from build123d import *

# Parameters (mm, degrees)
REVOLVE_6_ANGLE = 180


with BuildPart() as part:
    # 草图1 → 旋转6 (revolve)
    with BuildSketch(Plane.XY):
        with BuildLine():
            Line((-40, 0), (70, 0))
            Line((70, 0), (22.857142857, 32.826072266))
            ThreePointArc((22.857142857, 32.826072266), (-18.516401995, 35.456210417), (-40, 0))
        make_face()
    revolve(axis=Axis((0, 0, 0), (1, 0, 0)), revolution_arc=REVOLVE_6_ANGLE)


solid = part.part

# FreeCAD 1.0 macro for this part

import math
import FreeCAD as App
import Part
import Sketcher
from FreeCAD import Vector

doc = App.newDocument("Part")
body = doc.addObject("PartDesign::Body", "Body")

sketch1 = doc.addObject("Sketcher::SketchObject", "Sketch")
body.addObject(sketch1)
sketch1.AttachmentSupport = (doc.XY_Plane, [""])
sketch1.MapMode = "FlatFace"
sketch1.addGeometry([
    Part.LineSegment(Vector(-40, 0, 0), Vector(70, 0, 0)),
    Part.LineSegment(Vector(70, 0, 0), Vector(22.857143, 32.826072, 0)),
    Part.ArcOfCircle(Part.Circle(Vector(0, 0, 0), Vector(0, 0, 1), 40), math.radians(55.150095), math.radians(180)),
], False)
sketch1.addConstraint([
    Sketcher.Constraint("Coincident", 0, 2, 1, 1),
    Sketcher.Constraint("Tangent", 1, 2, 2, 1),
    Sketcher.Constraint("Coincident", 2, 2, 0, 1),
    Sketcher.Constraint("Horizontal", 0),
    Sketcher.Constraint("Coincident", 2, 3, -1, 1),
    Sketcher.Constraint("PointOnObject", 0, 2, -1),
    Sketcher.Constraint("Radius", 2, 40.0),
    Sketcher.Constraint("DistanceX", 0, 1, 0, 2, 110.0),
])
revolution = doc.addObject("PartDesign::Revolution", "Revolution")
body.addObject(revolution)
revolution.Profile = sketch1
revolution.ReferenceAxis = (sketch1, ["H_Axis"])
revolution.Angle = 180

doc.recompute()
